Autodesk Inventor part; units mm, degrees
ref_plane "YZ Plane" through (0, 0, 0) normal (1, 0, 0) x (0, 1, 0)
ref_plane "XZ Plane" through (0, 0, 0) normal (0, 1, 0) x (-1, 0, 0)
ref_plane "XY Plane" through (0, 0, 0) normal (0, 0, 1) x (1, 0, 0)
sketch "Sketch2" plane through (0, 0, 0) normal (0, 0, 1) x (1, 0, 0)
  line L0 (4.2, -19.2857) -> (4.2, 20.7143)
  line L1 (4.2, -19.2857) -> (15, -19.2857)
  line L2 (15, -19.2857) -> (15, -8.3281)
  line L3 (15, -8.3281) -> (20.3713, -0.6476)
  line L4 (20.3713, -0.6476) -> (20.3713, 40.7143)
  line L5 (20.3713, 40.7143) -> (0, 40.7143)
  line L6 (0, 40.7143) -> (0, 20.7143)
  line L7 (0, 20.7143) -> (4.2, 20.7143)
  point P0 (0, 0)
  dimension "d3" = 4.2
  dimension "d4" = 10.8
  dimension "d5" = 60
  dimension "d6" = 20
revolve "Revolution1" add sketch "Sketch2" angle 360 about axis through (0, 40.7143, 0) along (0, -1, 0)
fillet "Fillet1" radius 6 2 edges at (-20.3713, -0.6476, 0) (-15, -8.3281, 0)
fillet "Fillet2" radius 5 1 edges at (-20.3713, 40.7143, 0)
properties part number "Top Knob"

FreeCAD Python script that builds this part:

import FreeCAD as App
import Part
import Sketcher

V = App.Vector
Q = App.Units.Quantity


def edges_at(feature, points):
    """Names of the edges that pass closest to the given points."""
    edges = feature.Shape.Edges
    near = lambda p: min(range(len(edges)), key=lambda i: edges[i].distToShape(Part.Vertex(*p))[0])
    return sorted({f"Edge{near(p) + 1}" for p in points})


def add_polygon(sketch, points):
    """Adds a closed chain of lines whose ends are joined by coincident constraints."""
    first, n = sketch.GeometryCount, len(points)
    for a, b in zip(points, points[1:] + points[:1]):
        sketch.addGeometry(Part.LineSegment(App.Vector(*a, 0), App.Vector(*b, 0)), False)
    for i in range(n):
        sketch.addConstraint(Sketcher.Constraint("Coincident", first + i, 2, first + (i + 1) % n, 1))

doc = App.newDocument("Part")
params = doc.addObject("Spreadsheet::Sheet", "Params")
for row, (alias, value) in enumerate([
    ("sketch1_height", "20 mm"),
    ("sketch1_width", "10.8 mm"),
    ("sketch1_width2", "4.2 mm"),
    ("revolution_angle", "360 deg"),
    ("fillet_radius", "6 mm"),
    ("fillet2_radius", "5 mm"),
], start=1):
    params.set(f"A{row}", alias)
    params.set(f"B{row}", "=" + value)
    params.setAlias(f"B{row}", alias)

body = doc.addObject("PartDesign::Body", "Body")

sketch1 = doc.addObject("Sketcher::SketchObject", "Sketch")
body.addObject(sketch1)
sketch1.AttachmentSupport = (doc.XY_Plane, [""])
sketch1.MapMode = "FlatFace"
add_polygon(sketch1, [(4.2, 20.7), (4.2, -19.3), (15, -19.3), (15, -8.3), (20.4, -0.6), (20.4, 40.7), (0, 40.7), (0, 20.7)])
sketch1.addConstraint([
    Sketcher.Constraint("Vertical", 0),
    Sketcher.Constraint("Horizontal", 1),
    Sketcher.Constraint("Vertical", 2),
    Sketcher.Constraint("Vertical", 4),
    Sketcher.Constraint("Horizontal", 5),
    Sketcher.Constraint("Vertical", 6),
    Sketcher.Constraint("Horizontal", 7),
    Sketcher.Constraint("PointOnObject", 5, 2, -2),
    Sketcher.Constraint("DistanceY", 6, 2, 6, 1, Q("20 mm")),
    Sketcher.Constraint("DistanceX", 1, 1, 1, 2, Q("10.8 mm")),
    Sketcher.Constraint("DistanceX", 7, 1, 7, 2, Q("4.2 mm")),
    Sketcher.Constraint("DistanceY", 1, 2, 4, 2, Q("60 mm")),
    Sketcher.Constraint("DistanceY", 4, 1, 4, 2, Q("41.362 mm")),
    Sketcher.Constraint("DistanceX", 5, 2, 5, 1, Q("20.3713 mm")),
    Sketcher.Constraint("DistanceY", 2, 1, 2, 2, Q("10.9576 mm")),
    Sketcher.Constraint("DistanceY", 2, 2, -1, 1, Q("8.328 mm")),
])
sketch1.setExpression("Constraints[16]", "Params.sketch1_height")
sketch1.setExpression("Constraints[17]", "Params.sketch1_width")
sketch1.setExpression("Constraints[18]", "Params.sketch1_width2")
revolution = doc.addObject("PartDesign::Revolution", "Revolution")
body.addObject(revolution)
revolution.Profile = sketch1
revolution.ReferenceAxis = (sketch1, ["V_Axis"])
revolution.setExpression("Angle", "Params.revolution_angle")
doc.recompute()

fillet = doc.addObject("PartDesign::Fillet", "Fillet")
body.addObject(fillet)
fillet.Base = (revolution, edges_at(revolution, [(-20.371, -0.648, 0), (-15, -8.328, 0)]))
fillet.setExpression("Radius", "Params.fillet_radius")
doc.recompute()

fillet2 = doc.addObject("PartDesign::Fillet", "Fillet001")
body.addObject(fillet2)
fillet2.Base = (fillet, edges_at(fillet, [(-20.371, 40.714, 0)]))
fillet2.setExpression("Radius", "Params.fillet2_radius")

doc.recompute()
